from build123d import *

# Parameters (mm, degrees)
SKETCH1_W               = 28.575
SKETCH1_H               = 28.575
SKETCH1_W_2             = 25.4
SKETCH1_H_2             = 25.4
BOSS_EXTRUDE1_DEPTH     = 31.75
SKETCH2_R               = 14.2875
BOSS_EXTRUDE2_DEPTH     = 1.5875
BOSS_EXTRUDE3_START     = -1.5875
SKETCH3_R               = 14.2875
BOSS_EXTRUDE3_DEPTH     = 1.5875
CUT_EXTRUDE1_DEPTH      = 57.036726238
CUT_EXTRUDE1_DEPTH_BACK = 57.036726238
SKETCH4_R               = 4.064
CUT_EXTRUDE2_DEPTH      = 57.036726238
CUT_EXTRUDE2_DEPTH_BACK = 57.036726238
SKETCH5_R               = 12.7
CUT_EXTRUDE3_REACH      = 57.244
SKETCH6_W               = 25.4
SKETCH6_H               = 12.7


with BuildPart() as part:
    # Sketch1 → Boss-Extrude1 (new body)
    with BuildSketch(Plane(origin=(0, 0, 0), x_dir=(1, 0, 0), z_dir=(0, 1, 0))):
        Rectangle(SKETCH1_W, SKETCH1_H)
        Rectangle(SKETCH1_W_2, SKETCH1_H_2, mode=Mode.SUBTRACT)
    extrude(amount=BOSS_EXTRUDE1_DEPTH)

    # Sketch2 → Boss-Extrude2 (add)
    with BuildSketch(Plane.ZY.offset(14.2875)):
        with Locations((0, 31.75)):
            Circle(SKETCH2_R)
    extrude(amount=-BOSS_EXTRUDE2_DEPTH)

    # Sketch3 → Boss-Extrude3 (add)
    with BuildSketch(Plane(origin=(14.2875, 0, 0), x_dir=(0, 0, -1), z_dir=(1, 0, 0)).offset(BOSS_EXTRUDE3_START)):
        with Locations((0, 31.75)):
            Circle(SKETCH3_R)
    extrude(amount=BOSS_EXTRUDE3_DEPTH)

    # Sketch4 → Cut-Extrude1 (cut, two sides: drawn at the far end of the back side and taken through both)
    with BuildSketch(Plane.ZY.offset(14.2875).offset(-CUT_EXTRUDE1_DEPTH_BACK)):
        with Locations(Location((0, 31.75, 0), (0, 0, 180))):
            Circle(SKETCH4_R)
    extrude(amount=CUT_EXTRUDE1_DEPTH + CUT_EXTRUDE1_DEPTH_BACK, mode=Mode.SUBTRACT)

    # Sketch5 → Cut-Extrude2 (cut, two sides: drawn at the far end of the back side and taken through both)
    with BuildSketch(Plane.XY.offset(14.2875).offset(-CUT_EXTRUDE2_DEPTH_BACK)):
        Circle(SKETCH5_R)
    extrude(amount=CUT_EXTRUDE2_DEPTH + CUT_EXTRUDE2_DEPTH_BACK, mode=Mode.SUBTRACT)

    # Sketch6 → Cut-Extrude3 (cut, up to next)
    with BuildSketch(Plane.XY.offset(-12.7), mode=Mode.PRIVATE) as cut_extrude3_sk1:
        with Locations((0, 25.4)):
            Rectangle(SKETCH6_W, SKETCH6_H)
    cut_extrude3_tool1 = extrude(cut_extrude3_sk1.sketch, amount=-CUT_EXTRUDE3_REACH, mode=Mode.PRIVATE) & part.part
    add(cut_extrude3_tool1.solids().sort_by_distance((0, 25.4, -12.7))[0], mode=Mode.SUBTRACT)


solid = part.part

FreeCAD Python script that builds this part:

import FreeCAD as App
import Part
import Sketcher
from FreeCAD import Vector
Q = App.Units.Quantity


def add_polygon(sketch, points):
    """Adds a closed chain of lines whose ends are joined by coincident constraints."""
    first, n = sketch.GeometryCount, len(points)
    for a, b in zip(points, points[1:] + points[:1]):
        sketch.addGeometry(Part.LineSegment(App.Vector(*a, 0), App.Vector(*b, 0)), False)
    for i in range(n):
        sketch.addConstraint(Sketcher.Constraint("Coincident", first + i, 2, first + (i + 1) % n, 1))

doc = App.newDocument("Part")
body = doc.addObject("PartDesign::Body", "Body")

# Sketch on XZ plane
sketch1 = doc.addObject("Sketcher::SketchObject", "Sketch")
body.addObject(sketch1)
sketch1.AttachmentSupport = (doc.XZ_Plane, [""])
sketch1.MapMode = "FlatFace"
add_polygon(sketch1, [(-14, -14), (-14, 14), (14, 14), (14, -14)])  # lines 0-3
add_polygon(sketch1, [(13, 13), (-13, 13), (-13, -13), (13, -13)])  # lines 4-7
sketch1.addConstraint([
    Sketcher.Constraint("Vertical", 0),
    Sketcher.Constraint("Horizontal", 1),
    Sketcher.Constraint("Vertical", 2),
    Sketcher.Constraint("Horizontal", 3),
    Sketcher.Constraint("Horizontal", 4),
    Sketcher.Constraint("Vertical", 5),
    Sketcher.Constraint("Horizontal", 6),
    Sketcher.Constraint("Vertical", 7),
    Sketcher.Constraint("Symmetric", 0, 2, 2, 2, -1, 1),
    Sketcher.Constraint("Symmetric", 4, 2, 6, 2, -1, 1),
    Sketcher.Constraint("Equal", 3, 0),
    Sketcher.Constraint("Equal", 6, 5),
    Sketcher.Constraint("DistanceX", 4, 2, 4, 1, Q("1 in")),
    Sketcher.Constraint("DistanceX", 1, 1, 1, 2, Q("1.125 in")),
])
pad1 = doc.addObject("PartDesign::Pad", "Pad")
body.addObject(pad1)
pad1.Profile = sketch1
pad1.Length = Q("1.25 in")
pad1.Reversed = True

# Sketch on YZ plane
sketch2 = doc.addObject("Sketcher::SketchObject", "Sketch001")
body.addObject(sketch2)
sketch2.AttachmentSupport = (doc.YZ_Plane, [""])
sketch2.MapMode = "FlatFace"
sketch2.AttachmentOffset = App.Placement(Vector(0, 0, -0.5625 * 25.4), App.Rotation())
sketch2.addGeometry(Part.Circle(Vector(32, 0, 0), Vector(0, 0, 1), 14), False)
sketch2.addConstraint([
    Sketcher.Constraint("PointOnObject", 0, 3, -1),
    Sketcher.Constraint("Diameter", 0, Q("1.125 in")),
    Sketcher.Constraint("DistanceX", -1, 1, 0, 3, Q("1.25 in")),
])
pad2 = doc.addObject("PartDesign::Pad", "Pad001")
body.addObject(pad2)
pad2.Profile = sketch2
pad2.Length = Q("0.0625 in")

# Sketch on YZ plane
sketch3 = doc.addObject("Sketcher::SketchObject", "Sketch002")
body.addObject(sketch3)
sketch3.AttachmentSupport = (doc.YZ_Plane, [""])
sketch3.MapMode = "FlatFace"
sketch3.AttachmentOffset = App.Placement(Vector(0, 0, 0.5 * 25.4), App.Rotation())
sketch3.addGeometry(Part.Circle(Vector(32, 0, 0), Vector(0, 0, 1), 14), False)
sketch3.addConstraint([
    Sketcher.Constraint("PointOnObject", 0, 3, -1),
    Sketcher.Constraint("Diameter", 0, Q("1.125 in")),
    Sketcher.Constraint("DistanceX", -1, 1, 0, 3, Q("1.25 in")),
])
pad3 = doc.addObject("PartDesign::Pad", "Pad002")
body.addObject(pad3)
pad3.Profile = sketch3
pad3.Length = Q("0.0625 in")

# Sketch on YZ plane
sketch4 = doc.addObject("Sketcher::SketchObject", "Sketch003")
body.addObject(sketch4)
sketch4.AttachmentSupport = (doc.YZ_Plane, [""])
sketch4.MapMode = "FlatFace"
sketch4.AttachmentOffset = App.Placement(Vector(0, 0, -0.5625 * 25.4), App.Rotation())
sketch4.addGeometry(Part.Circle(Vector(31.8, 0, 0), Vector(0, 0, 1), 4.1), False)
sketch4.addConstraint([
    Sketcher.Constraint("PointOnObject", 0, 3, -1),
    Sketcher.Constraint("Diameter", 0, Q("0.32 in")),
    Sketcher.Constraint("DistanceX", -1, 1, 0, 3, Q("1.25 in")),
])
pocket1 = doc.addObject("PartDesign::Pocket", "Pocket")
body.addObject(pocket1)
pocket1.Profile = sketch4
pocket1.Type = "ThroughAll"
pocket1.Midplane = True

# Sketch on XY plane
sketch5 = doc.addObject("Sketcher::SketchObject", "Sketch004")
body.addObject(sketch5)
sketch5.AttachmentSupport = (doc.XY_Plane, [""])
sketch5.MapMode = "FlatFace"
sketch5.AttachmentOffset = App.Placement(Vector(0, 0, 0.5625 * 25.4), App.Rotation())
sketch5.addGeometry(Part.Circle(Vector(0, 0, 0), Vector(0, 0, 1), 13), False)
sketch5.addConstraint([
    Sketcher.Constraint("Coincident", 0, 3, -1, 1),
    Sketcher.Constraint("Diameter", 0, Q("1 in")),
])
pocket2 = doc.addObject("PartDesign::Pocket", "Pocket001")
body.addObject(pocket2)
pocket2.Profile = sketch5
pocket2.Type = "ThroughAll"
pocket2.Midplane = True

# Sketch on XY plane
sketch6 = doc.addObject("Sketcher::SketchObject", "Sketch005")
body.addObject(sketch6)
sketch6.AttachmentSupport = (doc.XY_Plane, [""])
sketch6.MapMode = "FlatFace"
sketch6.AttachmentOffset = App.Placement(Vector(0, 0, -0.5 * 25.4), App.Rotation())
add_polygon(sketch6, [(-13, 32), (-13, 19), (13, 19), (13, 32)])  # lines 0-3
sketch6.addConstraint([
    Sketcher.Constraint("Vertical", 0),
    Sketcher.Constraint("Horizontal", 1),
    Sketcher.Constraint("Vertical", 2),
    Sketcher.Constraint("Horizontal", 3),
    Sketcher.Constraint("DistanceX", 1, 1, 1, 2, Q("1 in")),
    Sketcher.Constraint("DistanceY", 0, 2, 0, 1, Q("0.5 in")),
    Sketcher.Constraint("DistanceX", 0, 2, -1, 1, Q("0.5 in")),
    Sketcher.Constraint("DistanceY", -1, 1, 0, 2, Q("0.75 in")),
])
pocket3 = doc.addObject("PartDesign::Pocket", "Pocket002")
body.addObject(pocket3)
pocket3.Profile = sketch6
pocket3.Type = "UpToFirst"

doc.recompute()
